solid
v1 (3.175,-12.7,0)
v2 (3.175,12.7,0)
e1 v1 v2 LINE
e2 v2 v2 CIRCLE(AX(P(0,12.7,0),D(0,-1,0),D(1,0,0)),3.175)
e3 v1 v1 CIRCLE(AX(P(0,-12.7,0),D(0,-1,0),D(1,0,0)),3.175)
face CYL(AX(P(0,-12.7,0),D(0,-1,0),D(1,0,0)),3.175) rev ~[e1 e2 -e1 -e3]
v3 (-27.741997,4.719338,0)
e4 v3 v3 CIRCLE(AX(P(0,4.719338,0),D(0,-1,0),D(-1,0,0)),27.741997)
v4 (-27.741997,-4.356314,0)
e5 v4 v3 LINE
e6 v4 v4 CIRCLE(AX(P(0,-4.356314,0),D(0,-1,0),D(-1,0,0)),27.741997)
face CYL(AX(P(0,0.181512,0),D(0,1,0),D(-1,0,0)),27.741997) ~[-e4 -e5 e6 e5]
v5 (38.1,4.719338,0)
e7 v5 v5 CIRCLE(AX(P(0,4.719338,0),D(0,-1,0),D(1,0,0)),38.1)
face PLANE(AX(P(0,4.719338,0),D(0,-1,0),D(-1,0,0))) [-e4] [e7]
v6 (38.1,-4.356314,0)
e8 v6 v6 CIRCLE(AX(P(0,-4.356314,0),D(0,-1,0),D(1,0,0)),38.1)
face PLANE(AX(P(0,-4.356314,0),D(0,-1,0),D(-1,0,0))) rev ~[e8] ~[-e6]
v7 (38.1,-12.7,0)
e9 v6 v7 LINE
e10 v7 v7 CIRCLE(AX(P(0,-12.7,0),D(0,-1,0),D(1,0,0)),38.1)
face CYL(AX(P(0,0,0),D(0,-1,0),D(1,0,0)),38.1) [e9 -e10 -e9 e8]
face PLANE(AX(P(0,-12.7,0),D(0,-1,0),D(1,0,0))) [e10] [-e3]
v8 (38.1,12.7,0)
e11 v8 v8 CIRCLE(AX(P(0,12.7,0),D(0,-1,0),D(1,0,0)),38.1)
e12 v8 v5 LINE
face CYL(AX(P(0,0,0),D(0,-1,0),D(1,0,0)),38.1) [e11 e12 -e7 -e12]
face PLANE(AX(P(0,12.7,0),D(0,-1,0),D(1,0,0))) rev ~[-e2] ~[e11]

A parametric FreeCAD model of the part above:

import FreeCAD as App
import Part
import Sketcher

V = App.Vector
Q = App.Units.Quantity


def add_polygon(sketch, points):
    """Adds a closed chain of lines whose ends are joined by coincident constraints."""
    first, n = sketch.GeometryCount, len(points)
    for a, b in zip(points, points[1:] + points[:1]):
        sketch.addGeometry(Part.LineSegment(App.Vector(*a, 0), App.Vector(*b, 0)), False)
    for i in range(n):
        sketch.addConstraint(Sketcher.Constraint("Coincident", first + i, 2, first + (i + 1) % n, 1))

doc = App.newDocument("Part")
body = doc.addObject("PartDesign::Body", "Body")

# Sketch on XZ plane
sketch1 = body.newObject("Sketcher::SketchObject", "Sketch")
sketch1.AttachmentSupport = (doc.getObject("XZ_Plane"), [""])
sketch1.MapMode = "FlatFace"
sketch1.addGeometry(Part.Circle(V(0, 0, 0), V(0, 0, 1), 38), False)
sketch1.addConstraint(Sketcher.Constraint("Coincident", 0, 3, -1, 1))
sketch1.addConstraint(Sketcher.Constraint("Diameter", 0, Q("3 in")))
pad1 = body.newObject("PartDesign::Pad", "Pad")
pad1.Profile = sketch1
pad1.Length = Q("1 in")
pad1.Midplane = True

# Sketch on XY plane
sketch2 = body.newObject("Sketcher::SketchObject", "Sketch001")
sketch2.AttachmentSupport = (doc.getObject("XY_Plane"), [""])
sketch2.MapMode = "FlatFace"
add_polygon(sketch2, [(-48, 5), (-48, -4), (-28, -4), (-28, 5)])  # lines 0-3
sketch2.addConstraint(Sketcher.Constraint("Vertical", 0))
sketch2.addConstraint(Sketcher.Constraint("Horizontal", 1))
sketch2.addConstraint(Sketcher.Constraint("Vertical", 2))
sketch2.addConstraint(Sketcher.Constraint("Horizontal", 3))
sketch2.addConstraint(Sketcher.Constraint("DistanceX", 1, 1, 1, 2, 20.025579))
sketch2.addConstraint(Sketcher.Constraint("DistanceY", 0, 2, 0, 1, 9.075652))
sketch2.addConstraint(Sketcher.Constraint("DistanceY", -1, 1, 2, 2, 4.719338))
sketch2.addConstraint(Sketcher.Constraint("DistanceX", 0, 2, -1, 1, 47.767576))
groove = body.newObject("PartDesign::Groove", "Groove")
groove.Profile = sketch2
groove.ReferenceAxis = (sketch2, ["V_Axis"])
groove.Angle = 360

# Sketch on XZ plane
sketch3 = body.newObject("Sketcher::SketchObject", "Sketch002")
sketch3.AttachmentSupport = (doc.getObject("XZ_Plane"), [""])
sketch3.MapMode = "FlatFace"
sketch3.AttachmentOffset = App.Placement(V(0, 0, 0.5 * 25.4), App.Rotation())
sketch3.addGeometry(Part.Circle(V(0, 0, 0), V(0, 0, 1), 3.2), False)
sketch3.addConstraint(Sketcher.Constraint("Coincident", 0, 3, -1, 1))
sketch3.addConstraint(Sketcher.Constraint("Diameter", 0, Q("0.25 in")))
pocket1 = body.newObject("PartDesign::Pocket", "Pocket")
pocket1.Profile = sketch3
pocket1.Type = "ThroughAll"

doc.recompute()
